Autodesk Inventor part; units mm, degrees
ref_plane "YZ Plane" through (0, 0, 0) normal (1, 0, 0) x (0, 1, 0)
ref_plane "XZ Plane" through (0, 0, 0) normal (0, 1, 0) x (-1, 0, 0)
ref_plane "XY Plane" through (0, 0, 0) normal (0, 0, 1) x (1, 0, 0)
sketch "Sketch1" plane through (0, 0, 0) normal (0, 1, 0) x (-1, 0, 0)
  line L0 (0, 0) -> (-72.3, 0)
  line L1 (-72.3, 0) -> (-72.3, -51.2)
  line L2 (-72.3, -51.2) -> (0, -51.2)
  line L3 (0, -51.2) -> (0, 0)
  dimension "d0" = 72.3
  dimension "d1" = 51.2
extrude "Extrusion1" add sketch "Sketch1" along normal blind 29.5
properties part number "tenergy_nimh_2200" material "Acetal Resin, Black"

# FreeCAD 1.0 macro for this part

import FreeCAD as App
import Part
import Sketcher
from FreeCAD import Vector
Q = App.Units.Quantity

doc = App.newDocument("Part")
body = doc.addObject("PartDesign::Body", "Body")

# Sketch on XZ plane
sketch1 = body.newObject("Sketcher::SketchObject", "Sketch")
sketch1.AttachmentSupport = (doc.getObject("XZ_Plane"), [""])
sketch1.MapMode = "FlatFace"
sketch1.addGeometry([
    Part.LineSegment(Vector(0, -51.2, 0), Vector(0, 0, 0)),
    Part.LineSegment(Vector(0, 0, 0), Vector(72.3, 0, 0)),
    Part.LineSegment(Vector(72.3, 0, 0), Vector(72.3, -51.2, 0)),
    Part.LineSegment(Vector(72.3, -51.2, 0), Vector(0, -51.2, 0)),
], False)
sketch1.addConstraint([
    Sketcher.Constraint("Coincident", 0, 2, 1, 1),
    Sketcher.Constraint("Coincident", 1, 2, 2, 1),
    Sketcher.Constraint("Coincident", 2, 2, 3, 1),
    Sketcher.Constraint("Coincident", 3, 2, 0, 1),
    Sketcher.Constraint("Vertical", 0),
    Sketcher.Constraint("Horizontal", 1),
    Sketcher.Constraint("Vertical", 2),
    Sketcher.Constraint("Horizontal", 3),
    Sketcher.Constraint("Coincident", 0, 2, -1, 1),
    Sketcher.Constraint("DistanceX", 1, 1, 1, 2, Q("72.3 mm")),
    Sketcher.Constraint("DistanceY", 0, 1, 0, 2, Q("51.2 mm")),
])
pad1 = body.newObject("PartDesign::Pad", "Pad")
pad1.Profile = sketch1
pad1.Length = 29.5
pad1.Reversed = True

doc.recompute()
